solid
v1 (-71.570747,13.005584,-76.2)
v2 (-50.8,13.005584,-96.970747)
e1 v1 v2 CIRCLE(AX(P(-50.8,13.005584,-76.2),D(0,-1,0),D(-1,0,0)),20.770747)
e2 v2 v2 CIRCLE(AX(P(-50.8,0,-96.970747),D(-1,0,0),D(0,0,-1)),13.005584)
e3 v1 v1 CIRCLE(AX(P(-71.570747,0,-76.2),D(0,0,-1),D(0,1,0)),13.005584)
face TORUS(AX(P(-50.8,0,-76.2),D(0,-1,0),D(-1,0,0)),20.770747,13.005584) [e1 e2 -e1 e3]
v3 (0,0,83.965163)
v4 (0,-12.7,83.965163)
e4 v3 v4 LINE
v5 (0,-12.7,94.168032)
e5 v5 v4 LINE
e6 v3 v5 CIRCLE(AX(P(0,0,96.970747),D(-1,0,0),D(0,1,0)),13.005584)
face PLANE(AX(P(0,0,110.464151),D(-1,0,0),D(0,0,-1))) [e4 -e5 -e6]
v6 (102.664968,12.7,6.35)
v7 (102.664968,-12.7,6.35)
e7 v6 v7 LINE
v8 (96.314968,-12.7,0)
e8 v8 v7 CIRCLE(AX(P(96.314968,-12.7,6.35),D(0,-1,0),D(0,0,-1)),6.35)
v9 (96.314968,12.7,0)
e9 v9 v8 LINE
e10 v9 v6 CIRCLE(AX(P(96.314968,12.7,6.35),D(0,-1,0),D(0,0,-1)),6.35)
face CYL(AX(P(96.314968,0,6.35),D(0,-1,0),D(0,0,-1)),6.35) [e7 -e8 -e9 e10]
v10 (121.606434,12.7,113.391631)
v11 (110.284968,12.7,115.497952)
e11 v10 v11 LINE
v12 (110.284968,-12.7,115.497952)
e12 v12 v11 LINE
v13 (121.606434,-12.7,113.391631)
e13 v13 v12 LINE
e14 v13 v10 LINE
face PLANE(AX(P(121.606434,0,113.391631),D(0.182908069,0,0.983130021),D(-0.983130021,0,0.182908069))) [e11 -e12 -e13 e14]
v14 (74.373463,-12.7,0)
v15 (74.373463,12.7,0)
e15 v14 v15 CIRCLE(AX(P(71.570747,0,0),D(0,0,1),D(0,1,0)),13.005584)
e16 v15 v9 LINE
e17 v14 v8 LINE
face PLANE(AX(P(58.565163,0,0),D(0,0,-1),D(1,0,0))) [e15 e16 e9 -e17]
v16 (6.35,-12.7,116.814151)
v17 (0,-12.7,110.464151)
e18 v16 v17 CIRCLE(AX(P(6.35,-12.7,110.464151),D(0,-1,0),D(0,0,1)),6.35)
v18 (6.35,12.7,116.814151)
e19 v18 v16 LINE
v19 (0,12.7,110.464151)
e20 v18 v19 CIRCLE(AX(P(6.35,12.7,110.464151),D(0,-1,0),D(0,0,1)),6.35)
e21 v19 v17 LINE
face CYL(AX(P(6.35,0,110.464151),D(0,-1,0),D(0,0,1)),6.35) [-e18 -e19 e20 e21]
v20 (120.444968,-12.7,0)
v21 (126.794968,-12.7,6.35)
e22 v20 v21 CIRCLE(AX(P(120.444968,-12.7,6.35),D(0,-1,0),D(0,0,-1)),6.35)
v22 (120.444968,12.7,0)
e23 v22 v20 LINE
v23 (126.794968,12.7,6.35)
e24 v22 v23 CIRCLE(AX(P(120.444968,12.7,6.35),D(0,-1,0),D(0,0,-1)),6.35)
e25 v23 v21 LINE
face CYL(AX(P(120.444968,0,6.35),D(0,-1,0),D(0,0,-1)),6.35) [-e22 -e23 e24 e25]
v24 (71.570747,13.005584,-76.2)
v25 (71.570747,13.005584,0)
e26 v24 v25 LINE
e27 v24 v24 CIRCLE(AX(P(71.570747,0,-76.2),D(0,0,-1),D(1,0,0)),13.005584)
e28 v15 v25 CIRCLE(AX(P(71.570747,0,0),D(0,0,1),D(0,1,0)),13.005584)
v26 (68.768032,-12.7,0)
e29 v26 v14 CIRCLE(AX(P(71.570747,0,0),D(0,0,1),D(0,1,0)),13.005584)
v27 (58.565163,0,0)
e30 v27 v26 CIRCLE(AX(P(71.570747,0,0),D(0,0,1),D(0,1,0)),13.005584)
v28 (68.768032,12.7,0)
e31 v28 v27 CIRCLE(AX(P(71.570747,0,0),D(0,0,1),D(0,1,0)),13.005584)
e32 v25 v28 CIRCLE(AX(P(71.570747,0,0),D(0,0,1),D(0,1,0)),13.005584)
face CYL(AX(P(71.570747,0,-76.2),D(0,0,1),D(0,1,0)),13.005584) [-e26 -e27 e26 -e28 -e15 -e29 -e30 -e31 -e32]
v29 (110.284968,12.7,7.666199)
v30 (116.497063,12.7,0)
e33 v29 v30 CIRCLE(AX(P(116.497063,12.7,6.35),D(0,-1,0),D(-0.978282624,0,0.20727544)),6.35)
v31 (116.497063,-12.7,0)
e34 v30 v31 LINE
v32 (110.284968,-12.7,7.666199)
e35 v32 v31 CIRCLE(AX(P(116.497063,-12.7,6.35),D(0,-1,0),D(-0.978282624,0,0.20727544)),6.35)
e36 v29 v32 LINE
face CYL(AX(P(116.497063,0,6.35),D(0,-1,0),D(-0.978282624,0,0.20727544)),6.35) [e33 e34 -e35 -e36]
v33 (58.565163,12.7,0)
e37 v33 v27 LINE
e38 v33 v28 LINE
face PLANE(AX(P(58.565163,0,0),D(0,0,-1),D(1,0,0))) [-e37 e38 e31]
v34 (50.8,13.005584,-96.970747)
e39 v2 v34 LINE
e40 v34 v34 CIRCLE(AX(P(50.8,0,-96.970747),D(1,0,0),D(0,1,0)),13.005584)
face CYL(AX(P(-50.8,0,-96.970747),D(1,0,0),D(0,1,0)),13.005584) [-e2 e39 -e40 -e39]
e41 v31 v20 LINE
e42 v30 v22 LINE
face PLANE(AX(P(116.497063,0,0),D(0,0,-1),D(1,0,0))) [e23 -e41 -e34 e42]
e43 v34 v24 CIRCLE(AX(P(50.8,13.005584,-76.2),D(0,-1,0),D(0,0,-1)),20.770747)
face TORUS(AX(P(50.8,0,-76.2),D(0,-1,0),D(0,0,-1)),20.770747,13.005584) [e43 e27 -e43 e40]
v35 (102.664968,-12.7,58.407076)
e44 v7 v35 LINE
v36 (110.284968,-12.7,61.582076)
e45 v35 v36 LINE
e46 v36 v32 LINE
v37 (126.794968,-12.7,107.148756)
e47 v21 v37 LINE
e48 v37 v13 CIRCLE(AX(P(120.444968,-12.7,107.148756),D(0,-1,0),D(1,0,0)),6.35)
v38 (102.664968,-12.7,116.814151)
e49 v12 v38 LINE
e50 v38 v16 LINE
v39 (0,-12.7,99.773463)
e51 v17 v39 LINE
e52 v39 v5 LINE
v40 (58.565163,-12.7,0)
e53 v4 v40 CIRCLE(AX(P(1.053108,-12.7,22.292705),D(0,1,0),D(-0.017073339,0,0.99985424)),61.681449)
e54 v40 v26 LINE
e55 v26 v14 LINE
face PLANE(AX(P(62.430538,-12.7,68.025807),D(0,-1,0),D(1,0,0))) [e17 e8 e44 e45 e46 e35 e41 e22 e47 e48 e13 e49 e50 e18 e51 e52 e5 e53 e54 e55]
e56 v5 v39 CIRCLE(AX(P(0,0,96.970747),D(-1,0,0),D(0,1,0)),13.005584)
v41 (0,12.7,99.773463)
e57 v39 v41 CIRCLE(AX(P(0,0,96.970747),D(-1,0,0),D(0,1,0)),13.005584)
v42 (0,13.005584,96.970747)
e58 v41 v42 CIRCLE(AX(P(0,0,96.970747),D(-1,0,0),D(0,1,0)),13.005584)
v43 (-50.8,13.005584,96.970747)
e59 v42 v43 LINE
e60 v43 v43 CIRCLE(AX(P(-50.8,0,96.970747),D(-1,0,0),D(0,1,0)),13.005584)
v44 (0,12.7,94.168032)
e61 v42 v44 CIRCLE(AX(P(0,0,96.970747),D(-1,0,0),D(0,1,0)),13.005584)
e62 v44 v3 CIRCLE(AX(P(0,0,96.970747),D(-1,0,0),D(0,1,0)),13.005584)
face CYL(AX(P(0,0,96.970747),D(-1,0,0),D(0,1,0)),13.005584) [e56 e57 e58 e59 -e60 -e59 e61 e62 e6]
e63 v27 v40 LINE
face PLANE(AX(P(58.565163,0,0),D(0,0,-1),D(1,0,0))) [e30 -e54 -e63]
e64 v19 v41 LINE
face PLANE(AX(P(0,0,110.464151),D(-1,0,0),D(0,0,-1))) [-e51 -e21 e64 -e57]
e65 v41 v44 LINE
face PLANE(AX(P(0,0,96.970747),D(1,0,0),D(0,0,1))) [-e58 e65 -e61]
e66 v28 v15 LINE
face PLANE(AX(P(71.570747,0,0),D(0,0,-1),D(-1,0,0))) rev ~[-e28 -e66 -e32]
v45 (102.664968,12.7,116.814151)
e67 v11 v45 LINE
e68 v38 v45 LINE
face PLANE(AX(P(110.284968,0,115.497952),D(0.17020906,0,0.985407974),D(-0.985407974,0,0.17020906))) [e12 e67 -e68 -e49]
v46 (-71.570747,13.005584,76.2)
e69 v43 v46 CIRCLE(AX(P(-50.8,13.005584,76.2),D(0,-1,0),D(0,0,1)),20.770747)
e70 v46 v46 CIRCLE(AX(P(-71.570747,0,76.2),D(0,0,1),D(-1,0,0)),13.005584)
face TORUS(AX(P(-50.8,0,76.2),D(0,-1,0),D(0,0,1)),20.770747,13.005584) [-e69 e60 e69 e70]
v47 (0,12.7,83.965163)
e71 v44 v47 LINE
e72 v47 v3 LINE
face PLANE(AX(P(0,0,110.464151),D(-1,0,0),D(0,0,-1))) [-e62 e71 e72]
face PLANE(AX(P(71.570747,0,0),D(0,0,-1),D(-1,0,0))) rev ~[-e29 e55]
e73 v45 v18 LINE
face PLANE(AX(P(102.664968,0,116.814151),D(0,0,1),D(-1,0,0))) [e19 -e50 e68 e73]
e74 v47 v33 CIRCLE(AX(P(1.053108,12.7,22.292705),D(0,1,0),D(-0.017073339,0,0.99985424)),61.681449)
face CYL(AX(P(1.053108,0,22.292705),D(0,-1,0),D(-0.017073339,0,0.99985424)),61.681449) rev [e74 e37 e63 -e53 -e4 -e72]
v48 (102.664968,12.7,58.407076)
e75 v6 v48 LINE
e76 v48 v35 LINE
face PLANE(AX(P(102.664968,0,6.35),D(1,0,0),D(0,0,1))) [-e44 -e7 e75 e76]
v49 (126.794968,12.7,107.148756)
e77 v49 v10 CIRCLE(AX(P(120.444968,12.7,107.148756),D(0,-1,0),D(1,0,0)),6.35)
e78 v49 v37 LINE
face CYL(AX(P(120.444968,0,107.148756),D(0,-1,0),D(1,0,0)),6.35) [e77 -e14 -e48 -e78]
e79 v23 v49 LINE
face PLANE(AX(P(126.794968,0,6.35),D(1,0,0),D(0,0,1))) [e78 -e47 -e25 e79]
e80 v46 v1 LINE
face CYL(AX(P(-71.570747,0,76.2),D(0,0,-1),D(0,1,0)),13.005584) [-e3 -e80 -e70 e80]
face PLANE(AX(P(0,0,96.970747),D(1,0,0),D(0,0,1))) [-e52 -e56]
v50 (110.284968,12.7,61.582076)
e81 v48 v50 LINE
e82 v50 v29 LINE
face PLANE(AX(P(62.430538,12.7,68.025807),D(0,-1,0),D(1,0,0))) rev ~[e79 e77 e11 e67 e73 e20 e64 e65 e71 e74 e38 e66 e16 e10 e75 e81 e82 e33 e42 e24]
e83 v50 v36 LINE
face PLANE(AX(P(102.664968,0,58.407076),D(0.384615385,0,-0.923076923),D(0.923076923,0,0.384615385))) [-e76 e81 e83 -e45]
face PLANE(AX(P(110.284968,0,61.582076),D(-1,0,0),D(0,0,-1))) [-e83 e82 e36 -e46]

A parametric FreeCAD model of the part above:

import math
import FreeCAD as App
import Part
import Sketcher
from FreeCAD import Vector
Q = App.Units.Quantity

doc = App.newDocument("Part")
body = doc.addObject("PartDesign::Body", "Body")

# Sketch on YZ plane
sketch1 = body.newObject("Sketcher::SketchObject", "Sketch")
sketch1.AttachmentSupport = (doc.getObject("YZ_Plane"), [""])
sketch1.MapMode = "FlatFace"
sketch1.addGeometry(Part.Circle(Vector(0, 96.970747, 0), Vector(0, 0, 1), 13.005584), False)
sketch1.addConstraint(Sketcher.Constraint("PointOnObject", 0, 3, -2))
sketch1.addConstraint(Sketcher.Constraint("Diameter", 0, 26.011168))
sketch1.addConstraint(Sketcher.Constraint("DistanceY", -1, 1, 0, 3, 96.970747))

# Sketch on XZ plane
sketch2 = body.newObject("Sketcher::SketchObject", "Sketch001")
sketch2.AttachmentSupport = (doc.getObject("XZ_Plane"), [""])
sketch2.MapMode = "FlatFace"
sketch2.addGeometry(Part.LineSegment(Vector(0, 96.970747, 0), Vector(-50.8, 96.970747, 0)), False)
sketch2.addGeometry(Part.ArcOfCircle(Part.Circle(Vector(-50.8, 76.2, 0), Vector(0, 0, 1), 20.770747), math.radians(90), math.radians(180)), False)
sketch2.addGeometry(Part.LineSegment(Vector(-71.570747, 76.2, 0), Vector(-71.570747, -76.2, 0)), False)
sketch2.addGeometry(Part.ArcOfCircle(Part.Circle(Vector(-50.8, -76.2, 0), Vector(0, 0, 1), 20.770747), math.radians(180), math.radians(270)), False)
sketch2.addGeometry(Part.LineSegment(Vector(-50.8, -96.970747, 0), Vector(50.8, -96.970747, 0)), False)
sketch2.addGeometry(Part.ArcOfCircle(Part.Circle(Vector(50.8, -76.2, 0), Vector(0, 0, 1), 20.770747), math.radians(-90), math.radians(0)), False)
sketch2.addGeometry(Part.LineSegment(Vector(71.570747, -76.2, 0), Vector(71.570747, 0, 0)), False)
sketch2.addConstraint(Sketcher.Constraint("Tangent", 0, 2, 1, 1))
sketch2.addConstraint(Sketcher.Constraint("Tangent", 1, 2, 2, 1))
sketch2.addConstraint(Sketcher.Constraint("Tangent", 2, 2, 3, 1))
sketch2.addConstraint(Sketcher.Constraint("Tangent", 3, 2, 4, 1))
sketch2.addConstraint(Sketcher.Constraint("Tangent", 4, 2, 5, 1))
sketch2.addConstraint(Sketcher.Constraint("Tangent", 5, 2, 6, 1))
sketch2.addConstraint(Sketcher.Constraint("Horizontal", 0))
sketch2.addConstraint(Sketcher.Constraint("Vertical", 2))
sketch2.addConstraint(Sketcher.Constraint("Horizontal", 4))
sketch2.addConstraint(Sketcher.Constraint("Vertical", 6))
sketch2.addConstraint(Sketcher.Constraint("Equal", 1, 3))
sketch2.addConstraint(Sketcher.Constraint("Equal", 3, 5))
sketch2.addConstraint(Sketcher.Constraint("Symmetric", 1, 3, 5, 3, -1, 1))
sketch2.addConstraint(Sketcher.Constraint("PointOnObject", 0, 1, -2))
sketch2.addConstraint(Sketcher.Constraint("PointOnObject", 6, 2, -1))
sketch2.addConstraint(Sketcher.Constraint("DistanceX", 0, 2, 0, 1, Q("2 in")))
sketch2.addConstraint(Sketcher.Constraint("DistanceY", 2, 2, 2, 1, Q("6 in")))
sketch2.addConstraint(Sketcher.Constraint("Radius", 1, 20.770747))
doc.recompute()

additivepipe = body.newObject("PartDesign::AdditivePipe", "AdditivePipe")
additivepipe.Profile = sketch1
additivepipe.Spine = (sketch2, ["Edge1", "Edge2", "Edge3", "Edge4", "Edge5", "Edge6", "Edge7"])

# Sketch on XZ plane
sketch3 = body.newObject("Sketcher::SketchObject", "Sketch002")
sketch3.AttachmentSupport = (doc.getObject("XZ_Plane"), [""])
sketch3.MapMode = "FlatFace"
sketch3.addGeometry(Part.LineSegment(Vector(102.664968, 116.814151, 0), Vector(6.35, 116.814151, 0)), False)
sketch3.addGeometry(Part.ArcOfCircle(Part.Circle(Vector(6.35, 110.464151, 0), Vector(0, 0, 1), 6.35), math.radians(90), math.radians(180)), False)
sketch3.addGeometry(Part.LineSegment(Vector(0, 110.464151, 0), Vector(0, 83.965163, 0)), False)
sketch3.addGeometry(Part.ArcOfCircle(Part.Circle(Vector(1.053108, 22.292705, 0), Vector(0, 0, 1), 61.681449), math.radians(-21.187225), math.radians(90.978278)), False)
sketch3.addGeometry(Part.LineSegment(Vector(58.565163, 0, 0), Vector(96.314968, 0, 0)), False)
sketch3.addGeometry(Part.ArcOfCircle(Part.Circle(Vector(96.314968, 6.35, 0), Vector(0, 0, 1), 6.35), math.radians(-90), math.radians(0)), False)
sketch3.addGeometry(Part.LineSegment(Vector(102.664968, 6.35, 0), Vector(102.664968, 58.407076, 0)), False)
sketch3.addGeometry(Part.LineSegment(Vector(102.664968, 58.407076, 0), Vector(110.284968, 61.582076, 0)), False)
sketch3.addGeometry(Part.LineSegment(Vector(110.284968, 61.582076, 0), Vector(110.284968, 7.666199, 0)), False)
sketch3.addGeometry(Part.ArcOfCircle(Part.Circle(Vector(116.497063, 6.35, 0), Vector(0, 0, 1), 6.35), math.radians(168.037266), math.radians(270)), False)
sketch3.addGeometry(Part.LineSegment(Vector(116.497063, 0, 0), Vector(120.444968, 0, 0)), False)
sketch3.addGeometry(Part.ArcOfCircle(Part.Circle(Vector(120.444968, 6.35, 0), Vector(0, 0, 1), 6.35), math.radians(-90), math.radians(0)), False)
sketch3.addGeometry(Part.LineSegment(Vector(126.794968, 6.35, 0), Vector(126.794968, 107.148756, 0)), False)
sketch3.addGeometry(Part.ArcOfCircle(Part.Circle(Vector(120.444968, 107.148756, 0), Vector(0, 0, 1), 6.35), math.radians(0), math.radians(79.460807)), False)
sketch3.addGeometry(Part.LineSegment(Vector(121.606434, 113.391631, 0), Vector(110.284968, 115.497952, 0)), False)
sketch3.addGeometry(Part.LineSegment(Vector(110.284968, 115.497952, 0), Vector(102.664968, 116.814151, 0)), False)
sketch3.addConstraint(Sketcher.Constraint("Tangent", 0, 2, 1, 1))
sketch3.addConstraint(Sketcher.Constraint("Tangent", 1, 2, 2, 1))
sketch3.addConstraint(Sketcher.Constraint("Coincident", 2, 2, 3, 2))
sketch3.addConstraint(Sketcher.Constraint("Coincident", 3, 1, 4, 1))
sketch3.addConstraint(Sketcher.Constraint("Tangent", 4, 2, 5, 1))
sketch3.addConstraint(Sketcher.Constraint("Tangent", 5, 2, 6, 1))
sketch3.addConstraint(Sketcher.Constraint("Coincident", 6, 2, 7, 1))
sketch3.addConstraint(Sketcher.Constraint("Coincident", 7, 2, 8, 1))
sketch3.addConstraint(Sketcher.Constraint("Coincident", 8, 2, 9, 1))
sketch3.addConstraint(Sketcher.Constraint("Tangent", 9, 2, 10, 1))
sketch3.addConstraint(Sketcher.Constraint("Tangent", 10, 2, 11, 1))
sketch3.addConstraint(Sketcher.Constraint("Tangent", 11, 2, 12, 1))
sketch3.addConstraint(Sketcher.Constraint("Tangent", 12, 2, 13, 1))
sketch3.addConstraint(Sketcher.Constraint("Tangent", 13, 2, 14, 1))
sketch3.addConstraint(Sketcher.Constraint("Coincident", 14, 2, 15, 1))
sketch3.addConstraint(Sketcher.Constraint("Coincident", 15, 2, 0, 1))
sketch3.addConstraint(Sketcher.Constraint("Horizontal", 0))
sketch3.addConstraint(Sketcher.Constraint("Vertical", 2))
sketch3.addConstraint(Sketcher.Constraint("Horizontal", 4))
sketch3.addConstraint(Sketcher.Constraint("Vertical", 6))
sketch3.addConstraint(Sketcher.Constraint("Vertical", 8))
sketch3.addConstraint(Sketcher.Constraint("Horizontal", 10))
sketch3.addConstraint(Sketcher.Constraint("Vertical", 12))
sketch3.addConstraint(Sketcher.Constraint("Equal", 1, 5))
sketch3.addConstraint(Sketcher.Constraint("Equal", 5, 9))
sketch3.addConstraint(Sketcher.Constraint("Equal", 9, 11))
sketch3.addConstraint(Sketcher.Constraint("Equal", 11, 13))
sketch3.addConstraint(Sketcher.Constraint("PointOnObject", 1, 2, -2))
sketch3.addConstraint(Sketcher.Constraint("PointOnObject", 3, 1, -1))
sketch3.addConstraint(Sketcher.Constraint("PointOnObject", 9, 2, -1))
sketch3.addConstraint(Sketcher.Constraint("Vertical", 8, 2, 14, 2))
sketch3.addConstraint(Sketcher.Constraint("Vertical", 6, 2, 15, 2))
sketch3.addConstraint(Sketcher.Constraint("Radius", 1, Q("0.25 in")))
sketch3.addConstraint(Sketcher.Constraint("DistanceX", 5, 2, 11, 3, Q("0.7 in")))
sketch3.addConstraint(Sketcher.Constraint("DistanceX", 6, 2, 7, 2, Q("0.3 in")))
sketch3.addConstraint(Sketcher.Constraint("Distance", 7, Q("0.325 in")))
sketch3.addConstraint(Sketcher.Constraint("Radius", 3, 61.681449))
sketch3.addConstraint(Sketcher.Constraint("DistanceX", 0, 2, 0, 1, 96.314968))
sketch3.addConstraint(Sketcher.Constraint("DistanceY", 2, 2, 2, 1, 26.498988))
sketch3.addConstraint(Sketcher.Constraint("DistanceY", -1, 1, 8, 2, 7.666199))
sketch3.addConstraint(Sketcher.Constraint("DistanceX", 3, 1, 9, 3, 57.9319))
sketch3.addConstraint(Sketcher.Constraint("DistanceY", 14, 2, 15, 2, 1.316199))
sketch3.addConstraint(Sketcher.Constraint("DistanceY", 6, 1, 6, 2, 52.057076))
sketch3.addConstraint(Sketcher.Constraint("DistanceY", 12, 1, 12, 2, 100.798756))
sketch3.addConstraint(Sketcher.Constraint("DistanceY", -1, 1, 1, 3, 110.464151))
pad1 = body.newObject("PartDesign::Pad", "Pad")
pad1.Profile = sketch3
pad1.Length = Q("1 in")
pad1.Midplane = True

doc.recompute()
